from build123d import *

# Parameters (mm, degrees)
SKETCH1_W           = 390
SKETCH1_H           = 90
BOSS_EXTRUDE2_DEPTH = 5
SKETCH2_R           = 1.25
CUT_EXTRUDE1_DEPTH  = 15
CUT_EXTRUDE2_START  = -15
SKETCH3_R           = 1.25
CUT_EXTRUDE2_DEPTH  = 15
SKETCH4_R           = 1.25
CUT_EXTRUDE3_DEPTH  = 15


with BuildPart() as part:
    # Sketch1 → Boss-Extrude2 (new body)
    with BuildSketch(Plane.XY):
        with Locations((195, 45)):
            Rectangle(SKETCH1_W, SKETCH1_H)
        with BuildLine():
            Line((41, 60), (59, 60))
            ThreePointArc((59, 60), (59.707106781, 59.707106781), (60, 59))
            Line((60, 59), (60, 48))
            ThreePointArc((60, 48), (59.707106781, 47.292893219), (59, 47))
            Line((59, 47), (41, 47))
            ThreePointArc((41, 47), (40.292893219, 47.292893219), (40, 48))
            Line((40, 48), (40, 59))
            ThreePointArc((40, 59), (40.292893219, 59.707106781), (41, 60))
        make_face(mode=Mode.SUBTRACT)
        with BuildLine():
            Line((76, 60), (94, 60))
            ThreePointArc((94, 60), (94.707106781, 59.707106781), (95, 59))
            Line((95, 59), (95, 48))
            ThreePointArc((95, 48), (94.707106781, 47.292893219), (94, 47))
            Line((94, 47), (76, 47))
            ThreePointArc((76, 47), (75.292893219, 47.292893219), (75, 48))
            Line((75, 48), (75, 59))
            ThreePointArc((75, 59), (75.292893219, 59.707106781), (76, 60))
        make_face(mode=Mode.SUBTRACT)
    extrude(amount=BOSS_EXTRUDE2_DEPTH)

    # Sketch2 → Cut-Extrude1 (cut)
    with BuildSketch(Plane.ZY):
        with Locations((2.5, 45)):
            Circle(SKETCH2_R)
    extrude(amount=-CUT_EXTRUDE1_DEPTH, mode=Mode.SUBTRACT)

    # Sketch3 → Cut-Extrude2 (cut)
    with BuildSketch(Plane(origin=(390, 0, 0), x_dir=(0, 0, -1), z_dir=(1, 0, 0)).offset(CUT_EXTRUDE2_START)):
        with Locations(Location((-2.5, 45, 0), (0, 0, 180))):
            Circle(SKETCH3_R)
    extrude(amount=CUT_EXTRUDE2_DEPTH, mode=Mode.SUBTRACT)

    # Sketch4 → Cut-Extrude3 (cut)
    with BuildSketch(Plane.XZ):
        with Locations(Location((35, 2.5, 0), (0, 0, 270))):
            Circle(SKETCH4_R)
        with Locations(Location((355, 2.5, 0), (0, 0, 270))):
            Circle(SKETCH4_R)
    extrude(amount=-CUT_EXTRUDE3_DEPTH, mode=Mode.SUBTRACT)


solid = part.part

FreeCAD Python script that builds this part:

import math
import FreeCAD as App
import Part
import Sketcher

V = App.Vector
Q = App.Units.Quantity


def add_polygon(sketch, points):
    """Adds a closed chain of lines whose ends are joined by coincident constraints."""
    first, n = sketch.GeometryCount, len(points)
    for a, b in zip(points, points[1:] + points[:1]):
        sketch.addGeometry(Part.LineSegment(App.Vector(*a, 0), App.Vector(*b, 0)), False)
    for i in range(n):
        sketch.addConstraint(Sketcher.Constraint("Coincident", first + i, 2, first + (i + 1) % n, 1))

doc = App.newDocument("Part")
body = doc.addObject("PartDesign::Body", "Body")

# Sketch on XY plane
sketch1 = doc.addObject("Sketcher::SketchObject", "Sketch")
body.addObject(sketch1)
sketch1.AttachmentSupport = (doc.XY_Plane, [""])
sketch1.MapMode = "FlatFace"
add_polygon(sketch1, [(0, 90), (0, 0), (390, 0), (390, 90)])  # lines 0-3
sketch1.addGeometry(Part.ArcOfCircle(Part.Circle(V(41, 59, 0), V(0, 0, 1), 1), math.radians(90), math.radians(180)), False)  # 4
sketch1.addGeometry(Part.LineSegment(V(41, 60, 0), V(59, 60, 0)), False)  # 5
sketch1.addGeometry(Part.ArcOfCircle(Part.Circle(V(59, 59, 0), V(0, 0, 1), 1), math.radians(0), math.radians(90)), False)  # 6
sketch1.addGeometry(Part.LineSegment(V(60, 59, 0), V(60, 48, 0)), False)  # 7
sketch1.addGeometry(Part.ArcOfCircle(Part.Circle(V(59, 48, 0), V(0, 0, 1), 1), math.radians(-90), math.radians(0)), False)  # 8
sketch1.addGeometry(Part.LineSegment(V(59, 47, 0), V(41, 47, 0)), False)  # 9
sketch1.addGeometry(Part.ArcOfCircle(Part.Circle(V(41, 48, 0), V(0, 0, 1), 1), math.radians(-180), math.radians(-90)), False)  # 10
sketch1.addGeometry(Part.LineSegment(V(40, 48, 0), V(40, 59, 0)), False)  # 11
sketch1.addGeometry(Part.ArcOfCircle(Part.Circle(V(76, 59, 0), V(0, 0, 1), 1), math.radians(90), math.radians(180)), False)  # 12
sketch1.addGeometry(Part.LineSegment(V(76, 60, 0), V(94, 60, 0)), False)  # 13
sketch1.addGeometry(Part.ArcOfCircle(Part.Circle(V(94, 59, 0), V(0, 0, 1), 1), math.radians(0), math.radians(90)), False)  # 14
sketch1.addGeometry(Part.LineSegment(V(95, 59, 0), V(95, 48, 0)), False)  # 15
sketch1.addGeometry(Part.ArcOfCircle(Part.Circle(V(94, 48, 0), V(0, 0, 1), 1), math.radians(-90), math.radians(0)), False)  # 16
sketch1.addGeometry(Part.LineSegment(V(94, 47, 0), V(76, 47, 0)), False)  # 17
sketch1.addGeometry(Part.ArcOfCircle(Part.Circle(V(76, 48, 0), V(0, 0, 1), 1), math.radians(-180), math.radians(-90)), False)  # 18
sketch1.addGeometry(Part.LineSegment(V(75, 48, 0), V(75, 59, 0)), False)  # 19
sketch1.addConstraint(Sketcher.Constraint("Tangent", 4, 1, 5, 1))
sketch1.addConstraint(Sketcher.Constraint("Tangent", 5, 2, 6, 2))
sketch1.addConstraint(Sketcher.Constraint("Tangent", 6, 1, 7, 1))
sketch1.addConstraint(Sketcher.Constraint("Tangent", 7, 2, 8, 2))
sketch1.addConstraint(Sketcher.Constraint("Tangent", 8, 1, 9, 1))
sketch1.addConstraint(Sketcher.Constraint("Tangent", 9, 2, 10, 2))
sketch1.addConstraint(Sketcher.Constraint("Tangent", 10, 1, 11, 1))
sketch1.addConstraint(Sketcher.Constraint("Tangent", 11, 2, 4, 2))
sketch1.addConstraint(Sketcher.Constraint("Tangent", 12, 1, 13, 1))
sketch1.addConstraint(Sketcher.Constraint("Tangent", 13, 2, 14, 2))
sketch1.addConstraint(Sketcher.Constraint("Tangent", 14, 1, 15, 1))
sketch1.addConstraint(Sketcher.Constraint("Tangent", 15, 2, 16, 2))
sketch1.addConstraint(Sketcher.Constraint("Tangent", 16, 1, 17, 1))
sketch1.addConstraint(Sketcher.Constraint("Tangent", 17, 2, 18, 2))
sketch1.addConstraint(Sketcher.Constraint("Tangent", 18, 1, 19, 1))
sketch1.addConstraint(Sketcher.Constraint("Tangent", 19, 2, 12, 2))
sketch1.addConstraint(Sketcher.Constraint("Vertical", 0))
sketch1.addConstraint(Sketcher.Constraint("Horizontal", 1))
sketch1.addConstraint(Sketcher.Constraint("Vertical", 2))
sketch1.addConstraint(Sketcher.Constraint("Horizontal", 3))
sketch1.addConstraint(Sketcher.Constraint("Horizontal", 5))
sketch1.addConstraint(Sketcher.Constraint("Vertical", 7))
sketch1.addConstraint(Sketcher.Constraint("Horizontal", 9))
sketch1.addConstraint(Sketcher.Constraint("Vertical", 11))
sketch1.addConstraint(Sketcher.Constraint("Horizontal", 13))
sketch1.addConstraint(Sketcher.Constraint("Vertical", 15))
sketch1.addConstraint(Sketcher.Constraint("Horizontal", 17))
sketch1.addConstraint(Sketcher.Constraint("Vertical", 19))
sketch1.addConstraint(Sketcher.Constraint("Coincident", 0, 2, -1, 1))
sketch1.addConstraint(Sketcher.Constraint("Equal", 4, 6))
sketch1.addConstraint(Sketcher.Constraint("Equal", 6, 8))
sketch1.addConstraint(Sketcher.Constraint("Equal", 8, 10))
sketch1.addConstraint(Sketcher.Constraint("Equal", 10, 12))
sketch1.addConstraint(Sketcher.Constraint("Equal", 12, 14))
sketch1.addConstraint(Sketcher.Constraint("Equal", 14, 16))
sketch1.addConstraint(Sketcher.Constraint("Equal", 16, 18))
sketch1.addConstraint(Sketcher.Constraint("Horizontal", 6, 3, 12, 3))
sketch1.addConstraint(Sketcher.Constraint("Horizontal", 10, 3, 16, 3))
sketch1.addConstraint(Sketcher.Constraint("Equal", 9, 13))
sketch1.addConstraint(Sketcher.Constraint("Radius", 4, Q("1 mm")))
sketch1.addConstraint(Sketcher.Constraint("DistanceX", 1, 1, 1, 2, Q("390 mm")))
sketch1.addConstraint(Sketcher.Constraint("DistanceX", 5, 1, 5, 2, Q("18 mm")))
sketch1.addConstraint(Sketcher.Constraint("DistanceY", 0, 2, 0, 1, Q("90 mm")))
sketch1.addConstraint(Sketcher.Constraint("DistanceY", 7, 2, 7, 1, Q("11 mm")))
sketch1.addConstraint(Sketcher.Constraint("DistanceX", -1, 1, 4, 3, Q("41 mm")))
sketch1.addConstraint(Sketcher.Constraint("DistanceY", -1, 1, 4, 3, Q("59 mm")))
sketch1.addConstraint(Sketcher.Constraint("DistanceX", -1, 1, 12, 3, Q("76 mm")))
pad1 = doc.addObject("PartDesign::Pad", "Pad")
body.addObject(pad1)
pad1.Profile = sketch1
pad1.Length = 5

# Sketch on YZ plane
sketch2 = doc.addObject("Sketcher::SketchObject", "Sketch001")
body.addObject(sketch2)
sketch2.AttachmentSupport = (doc.YZ_Plane, [""])
sketch2.MapMode = "FlatFace"
sketch2.addGeometry(Part.Circle(V(45, 2.5, 0), V(0, 0, 1), 1.2), False)
sketch2.addConstraint(Sketcher.Constraint("Diameter", 0, Q("2.5 mm")))
sketch2.addConstraint(Sketcher.Constraint("DistanceX", -1, 1, 0, 3, Q("45 mm")))
sketch2.addConstraint(Sketcher.Constraint("DistanceY", -1, 1, 0, 3, Q("2.5 mm")))
pocket1 = doc.addObject("PartDesign::Pocket", "Pocket")
body.addObject(pocket1)
pocket1.Profile = sketch2
pocket1.Length = 15
pocket1.Reversed = True

# Sketch on YZ plane
sketch3 = doc.addObject("Sketcher::SketchObject", "Sketch002")
body.addObject(sketch3)
sketch3.AttachmentSupport = (doc.YZ_Plane, [""])
sketch3.MapMode = "FlatFace"
sketch3.AttachmentOffset = App.Placement(V(0, 0, 375), App.Rotation())
sketch3.addGeometry(Part.Circle(V(45, 2.5, 0), V(0, 0, 1), 1.2), False)
sketch3.addConstraint(Sketcher.Constraint("Diameter", 0, Q("2.5 mm")))
sketch3.addConstraint(Sketcher.Constraint("DistanceX", -1, 1, 0, 3, Q("45 mm")))
sketch3.addConstraint(Sketcher.Constraint("DistanceY", -1, 1, 0, 3, Q("2.5 mm")))
pocket2 = doc.addObject("PartDesign::Pocket", "Pocket001")
body.addObject(pocket2)
pocket2.Profile = sketch3
pocket2.Length = 15
pocket2.Reversed = True

# Sketch on XZ plane
sketch4 = doc.addObject("Sketcher::SketchObject", "Sketch003")
body.addObject(sketch4)
sketch4.AttachmentSupport = (doc.XZ_Plane, [""])
sketch4.MapMode = "FlatFace"
sketch4.addGeometry(Part.Circle(V(35, 2.5, 0), V(0, 0, 1), 1.2), False)
sketch4.addGeometry(Part.Circle(V(355, 2.5, 0), V(0, 0, 1), 1.2), False)
sketch4.addConstraint(Sketcher.Constraint("Equal", 0, 1))
sketch4.addConstraint(Sketcher.Constraint("Horizontal", 0, 3, 1, 3))
sketch4.addConstraint(Sketcher.Constraint("Diameter", 0, Q("2.5 mm")))
sketch4.addConstraint(Sketcher.Constraint("DistanceX", -1, 1, 0, 3, Q("35 mm")))
sketch4.addConstraint(Sketcher.Constraint("DistanceX", -1, 1, 1, 3, Q("355 mm")))
sketch4.addConstraint(Sketcher.Constraint("DistanceY", -1, 1, 0, 3, Q("2.5 mm")))
pocket3 = doc.addObject("PartDesign::Pocket", "Pocket002")
body.addObject(pocket3)
pocket3.Profile = sketch4
pocket3.Length = 15

doc.recompute()
